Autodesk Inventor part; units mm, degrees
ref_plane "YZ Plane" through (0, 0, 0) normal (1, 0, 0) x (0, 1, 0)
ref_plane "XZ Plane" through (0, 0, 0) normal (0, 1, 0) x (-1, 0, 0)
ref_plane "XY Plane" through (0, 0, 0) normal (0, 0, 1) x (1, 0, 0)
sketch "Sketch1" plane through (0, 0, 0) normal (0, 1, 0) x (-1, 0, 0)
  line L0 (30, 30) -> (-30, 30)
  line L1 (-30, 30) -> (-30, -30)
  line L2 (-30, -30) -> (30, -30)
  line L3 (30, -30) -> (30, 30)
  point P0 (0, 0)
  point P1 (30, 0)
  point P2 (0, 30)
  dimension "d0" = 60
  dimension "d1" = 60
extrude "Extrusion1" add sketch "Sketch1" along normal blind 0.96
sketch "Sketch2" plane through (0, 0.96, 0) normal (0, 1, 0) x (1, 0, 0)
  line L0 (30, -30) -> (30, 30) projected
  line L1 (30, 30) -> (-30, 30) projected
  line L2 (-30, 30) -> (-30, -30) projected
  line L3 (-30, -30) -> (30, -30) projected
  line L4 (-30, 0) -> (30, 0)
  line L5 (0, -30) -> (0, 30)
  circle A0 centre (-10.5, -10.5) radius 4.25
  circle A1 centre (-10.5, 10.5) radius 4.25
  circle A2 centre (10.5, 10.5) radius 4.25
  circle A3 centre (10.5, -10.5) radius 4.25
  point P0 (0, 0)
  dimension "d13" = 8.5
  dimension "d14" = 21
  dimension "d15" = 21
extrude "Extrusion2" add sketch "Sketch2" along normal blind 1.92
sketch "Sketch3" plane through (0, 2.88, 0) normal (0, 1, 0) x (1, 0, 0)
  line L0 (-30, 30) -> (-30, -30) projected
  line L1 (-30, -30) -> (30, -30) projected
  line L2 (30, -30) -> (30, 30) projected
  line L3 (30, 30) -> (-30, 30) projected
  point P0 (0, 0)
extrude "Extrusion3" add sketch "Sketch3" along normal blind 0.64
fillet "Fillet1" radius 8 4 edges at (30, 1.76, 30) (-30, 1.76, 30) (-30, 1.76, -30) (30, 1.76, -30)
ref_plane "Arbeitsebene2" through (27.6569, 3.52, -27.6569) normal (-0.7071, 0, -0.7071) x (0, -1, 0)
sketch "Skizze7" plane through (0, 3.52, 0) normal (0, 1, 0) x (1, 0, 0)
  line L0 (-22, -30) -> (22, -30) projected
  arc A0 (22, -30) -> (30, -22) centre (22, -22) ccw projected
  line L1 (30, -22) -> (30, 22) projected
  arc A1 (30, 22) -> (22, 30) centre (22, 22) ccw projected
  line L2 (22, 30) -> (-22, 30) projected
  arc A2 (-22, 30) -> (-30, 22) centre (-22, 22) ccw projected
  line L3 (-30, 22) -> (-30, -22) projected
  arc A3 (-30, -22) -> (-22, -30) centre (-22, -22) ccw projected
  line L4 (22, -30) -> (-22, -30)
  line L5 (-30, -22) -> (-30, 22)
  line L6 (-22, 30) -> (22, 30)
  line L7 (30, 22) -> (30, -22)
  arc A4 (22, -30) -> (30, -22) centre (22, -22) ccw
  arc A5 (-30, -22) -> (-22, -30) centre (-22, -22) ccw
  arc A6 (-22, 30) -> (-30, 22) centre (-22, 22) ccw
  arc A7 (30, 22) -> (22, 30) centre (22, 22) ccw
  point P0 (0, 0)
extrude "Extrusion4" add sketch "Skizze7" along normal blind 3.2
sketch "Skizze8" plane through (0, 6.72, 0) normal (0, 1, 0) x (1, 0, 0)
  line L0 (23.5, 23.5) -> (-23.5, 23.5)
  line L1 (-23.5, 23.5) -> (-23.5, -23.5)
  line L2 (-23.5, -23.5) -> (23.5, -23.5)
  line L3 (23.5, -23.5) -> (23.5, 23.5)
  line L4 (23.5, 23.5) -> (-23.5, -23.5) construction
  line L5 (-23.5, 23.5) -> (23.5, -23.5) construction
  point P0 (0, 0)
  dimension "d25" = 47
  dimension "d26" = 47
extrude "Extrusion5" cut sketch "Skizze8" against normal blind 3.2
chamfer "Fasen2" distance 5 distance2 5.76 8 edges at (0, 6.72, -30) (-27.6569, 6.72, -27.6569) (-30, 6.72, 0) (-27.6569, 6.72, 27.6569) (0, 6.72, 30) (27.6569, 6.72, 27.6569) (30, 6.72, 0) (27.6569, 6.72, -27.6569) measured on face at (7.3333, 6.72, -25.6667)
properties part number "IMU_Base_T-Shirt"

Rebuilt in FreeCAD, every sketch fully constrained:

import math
import FreeCAD as App
import Part
import Sketcher
Q = App.Units.Quantity


def edges_at(feature, points):
    """Names of the edges that pass closest to the given points."""
    edges = feature.Shape.Edges
    near = lambda p: min(range(len(edges)), key=lambda i: edges[i].distToShape(Part.Vertex(*p))[0])
    return sorted({f"Edge{near(p) + 1}" for p in points})

doc = App.newDocument("Part")
body = doc.addObject("PartDesign::Body", "Body")

# Sketch on XZ plane
sketch1 = body.newObject("Sketcher::SketchObject", "Sketch")
sketch1.AttachmentSupport = (doc.getObject("XZ_Plane"), [""])
sketch1.MapMode = "FlatFace"
sketch1.addGeometry([
    Part.LineSegment(App.Vector(-30, -30, 0), App.Vector(-30, 30, 0)),
    Part.LineSegment(App.Vector(-30, 30, 0), App.Vector(30, 30, 0)),
    Part.LineSegment(App.Vector(30, 30, 0), App.Vector(30, -30, 0)),
    Part.LineSegment(App.Vector(30, -30, 0), App.Vector(-30, -30, 0)),
], False)
sketch1.addConstraint([
    Sketcher.Constraint("Coincident", 0, 2, 1, 1),
    Sketcher.Constraint("Coincident", 1, 2, 2, 1),
    Sketcher.Constraint("Coincident", 2, 2, 3, 1),
    Sketcher.Constraint("Coincident", 3, 2, 0, 1),
    Sketcher.Constraint("Vertical", 0),
    Sketcher.Constraint("Horizontal", 1),
    Sketcher.Constraint("Vertical", 2),
    Sketcher.Constraint("Horizontal", 3),
    Sketcher.Constraint("Symmetric", 0, 2, 2, 2, -1, 1),
    Sketcher.Constraint("Equal", 3, 0),
    Sketcher.Constraint("DistanceX", 1, 1, 1, 2, Q("60 mm")),
])
pad1 = body.newObject("PartDesign::Pad", "Pad")
pad1.Profile = sketch1
pad1.Length = 0.96
pad1.Reversed = True

# Sketch on XZ plane
sketch2 = body.newObject("Sketcher::SketchObject", "Sketch001")
sketch2.AttachmentSupport = (doc.getObject("XZ_Plane"), [""])
sketch2.MapMode = "FlatFace"
sketch2.AttachmentOffset = App.Placement(App.Vector(0, 0, -0.96), App.Rotation())
sketch2.addGeometry([
    Part.LineSegment(App.Vector(30, 30, 0), App.Vector(30, -30, 0)),  # 0
    Part.LineSegment(App.Vector(30, -30, 0), App.Vector(-30, -30, 0)),  # 1
    Part.LineSegment(App.Vector(-30, -30, 0), App.Vector(-30, 30, 0)),  # 2
    Part.LineSegment(App.Vector(-30, 30, 0), App.Vector(30, 30, 0)),  # 3
    Part.Circle(App.Vector(10.5, 10.5, 0), App.Vector(0, 0, 1), 4.2),  # 4
    Part.Circle(App.Vector(-10.5, 10.5, 0), App.Vector(0, 0, 1), 4.2),  # 5
    Part.Circle(App.Vector(10.5, -10.5, 0), App.Vector(0, 0, 1), 4.2),  # 6
    Part.Circle(App.Vector(-10.5, -10.5, 0), App.Vector(0, 0, 1), 4.2),  # 7
], False)
sketch2.addConstraint([
    Sketcher.Constraint("Coincident", 0, 2, 1, 1),
    Sketcher.Constraint("Coincident", 1, 2, 2, 1),
    Sketcher.Constraint("Coincident", 2, 2, 3, 1),
    Sketcher.Constraint("Coincident", 3, 2, 0, 1),
    Sketcher.Constraint("Vertical", 0),
    Sketcher.Constraint("Horizontal", 1),
    Sketcher.Constraint("Vertical", 2),
    Sketcher.Constraint("Horizontal", 3),
    Sketcher.Constraint("Equal", 4, 5),
    Sketcher.Constraint("Equal", 5, 6),
    Sketcher.Constraint("Equal", 6, 7),
    Sketcher.Constraint("Symmetric", 5, 3, 6, 3, -1, 1),
    Sketcher.Constraint("Symmetric", 4, 3, 7, 3, -1, 1),
    Sketcher.Constraint("Symmetric", 0, 2, 2, 2, -1, 1),
    Sketcher.Constraint("Symmetric", 4, 3, 5, 3, -2),
    Sketcher.Constraint("Equal", 3, 0),
    Sketcher.Constraint("Diameter", 4, Q("8.5 mm")),
    Sketcher.Constraint("DistanceX", 5, 3, 4, 3, Q("21 mm")),
    Sketcher.Constraint("DistanceY", 6, 3, 4, 3, Q("21 mm")),
    Sketcher.Constraint("DistanceX", 1, 2, 1, 1, Q("60 mm")),
])
pad2 = body.newObject("PartDesign::Pad", "Pad001")
pad2.Profile = sketch2
pad2.Length = 1.92
pad2.Reversed = True

# Sketch on XZ plane
sketch3 = body.newObject("Sketcher::SketchObject", "Sketch002")
sketch3.AttachmentSupport = (doc.getObject("XZ_Plane"), [""])
sketch3.MapMode = "FlatFace"
sketch3.AttachmentOffset = App.Placement(App.Vector(0, 0, -2.88), App.Rotation())
sketch3.addGeometry([
    Part.LineSegment(App.Vector(30, -30, 0), App.Vector(-30, -30, 0)),
    Part.LineSegment(App.Vector(-30, -30, 0), App.Vector(-30, 30, 0)),
    Part.LineSegment(App.Vector(-30, 30, 0), App.Vector(30, 30, 0)),
    Part.LineSegment(App.Vector(30, 30, 0), App.Vector(30, -30, 0)),
], False)
sketch3.addConstraint([
    Sketcher.Constraint("Coincident", 0, 2, 1, 1),
    Sketcher.Constraint("Coincident", 1, 2, 2, 1),
    Sketcher.Constraint("Coincident", 2, 2, 3, 1),
    Sketcher.Constraint("Coincident", 3, 2, 0, 1),
    Sketcher.Constraint("Horizontal", 0),
    Sketcher.Constraint("Vertical", 1),
    Sketcher.Constraint("Horizontal", 2),
    Sketcher.Constraint("Vertical", 3),
    Sketcher.Constraint("Symmetric", 0, 2, 2, 2, -1, 1),
    Sketcher.Constraint("Equal", 2, 1),
    Sketcher.Constraint("DistanceX", 0, 2, 0, 1, Q("60 mm")),
])
pad3 = body.newObject("PartDesign::Pad", "Pad002")
pad3.Profile = sketch3
pad3.Length = 0.64
pad3.Reversed = True
doc.recompute()

fillet = body.newObject("PartDesign::Fillet", "Fillet")
fillet.Base = (pad3, edges_at(pad3, [
    (30, 1.76, 30),
    (-30, 1.76, 30),
    (-30, 1.76, -30),
    (30, 1.76, -30),
]))
fillet.Radius = 8

# Sketch on XZ plane
sketch4 = body.newObject("Sketcher::SketchObject", "Sketch003")
sketch4.AttachmentSupport = (doc.getObject("XZ_Plane"), [""])
sketch4.MapMode = "FlatFace"
sketch4.AttachmentOffset = App.Placement(App.Vector(0, 0, -3.52), App.Rotation())
sketch4.addGeometry([
    Part.ArcOfCircle(Part.Circle(App.Vector(-22, 22, 0), App.Vector(0, 0, 1), 8), math.radians(90), math.radians(180)),  # 0
    Part.LineSegment(App.Vector(-22, 30, 0), App.Vector(22, 30, 0)),  # 1
    Part.ArcOfCircle(Part.Circle(App.Vector(22, 22, 0), App.Vector(0, 0, 1), 8), math.radians(0), math.radians(90)),  # 2
    Part.LineSegment(App.Vector(30, 22, 0), App.Vector(30, -22, 0)),  # 3
    Part.ArcOfCircle(Part.Circle(App.Vector(22, -22, 0), App.Vector(0, 0, 1), 8), math.radians(-90), math.radians(0)),  # 4
    Part.LineSegment(App.Vector(22, -30, 0), App.Vector(-22, -30, 0)),  # 5
    Part.ArcOfCircle(Part.Circle(App.Vector(-22, -22, 0), App.Vector(0, 0, 1), 8), math.radians(180), math.radians(270)),  # 6
    Part.LineSegment(App.Vector(-30, -22, 0), App.Vector(-30, 22, 0)),  # 7
], False)
sketch4.addConstraint([
    Sketcher.Constraint("Tangent", 0, 1, 1, 1),
    Sketcher.Constraint("Tangent", 1, 2, 2, 2),
    Sketcher.Constraint("Tangent", 2, 1, 3, 1),
    Sketcher.Constraint("Tangent", 3, 2, 4, 2),
    Sketcher.Constraint("Tangent", 4, 1, 5, 1),
    Sketcher.Constraint("Tangent", 5, 2, 6, 2),
    Sketcher.Constraint("Tangent", 6, 1, 7, 1),
    Sketcher.Constraint("Tangent", 7, 2, 0, 2),
    Sketcher.Constraint("Horizontal", 1),
    Sketcher.Constraint("Vertical", 3),
    Sketcher.Constraint("Horizontal", 5),
    Sketcher.Constraint("Vertical", 7),
    Sketcher.Constraint("Equal", 0, 2),
    Sketcher.Constraint("Equal", 2, 4),
    Sketcher.Constraint("Equal", 4, 6),
    Sketcher.Constraint("Symmetric", 0, 3, 4, 3, -1, 1),
    Sketcher.Constraint("Equal", 5, 3),
    Sketcher.Constraint("Radius", 0, Q("8 mm")),
    Sketcher.Constraint("DistanceX", 1, 1, 1, 2, Q("44 mm")),
])
pad4 = body.newObject("PartDesign::Pad", "Pad003")
pad4.Profile = sketch4
pad4.Length = 3.2
pad4.Reversed = True

# Sketch on XZ plane
sketch5 = body.newObject("Sketcher::SketchObject", "Sketch004")
sketch5.AttachmentSupport = (doc.getObject("XZ_Plane"), [""])
sketch5.MapMode = "FlatFace"
sketch5.AttachmentOffset = App.Placement(App.Vector(0, 0, -6.72), App.Rotation())
sketch5.addGeometry([
    Part.LineSegment(App.Vector(24, 24, 0), App.Vector(24, -24, 0)),
    Part.LineSegment(App.Vector(24, -24, 0), App.Vector(-24, -24, 0)),
    Part.LineSegment(App.Vector(-24, -24, 0), App.Vector(-24, 24, 0)),
    Part.LineSegment(App.Vector(-24, 24, 0), App.Vector(24, 24, 0)),
], False)
sketch5.addConstraint([
    Sketcher.Constraint("Coincident", 0, 2, 1, 1),
    Sketcher.Constraint("Coincident", 1, 2, 2, 1),
    Sketcher.Constraint("Coincident", 2, 2, 3, 1),
    Sketcher.Constraint("Coincident", 3, 2, 0, 1),
    Sketcher.Constraint("Vertical", 0),
    Sketcher.Constraint("Horizontal", 1),
    Sketcher.Constraint("Vertical", 2),
    Sketcher.Constraint("Horizontal", 3),
    Sketcher.Constraint("Symmetric", 0, 2, 2, 2, -1, 1),
    Sketcher.Constraint("Equal", 3, 0),
    Sketcher.Constraint("DistanceX", 1, 2, 1, 1, Q("47 mm")),
])
pocket1 = body.newObject("PartDesign::Pocket", "Pocket")
pocket1.Profile = sketch5
pocket1.Length = 3.2
pocket1.Reversed = True
doc.recompute()

chamfer = body.newObject("PartDesign::Chamfer", "Chamfer")
chamfer.Base = (pocket1, edges_at(pocket1, [
    (0, 6.72, -30),
    (-27.657, 6.72, -27.657),
    (-30, 6.72, 0),
    (-27.657, 6.72, 27.657),
    (0, 6.72, 30),
    (27.657, 6.72, 27.657),
    (30, 6.72, 0),
    (27.657, 6.72, -27.657),
]))
chamfer.ChamferType = "Two distances"
chamfer.Size = 5
chamfer.Size2 = 5.76
chamfer.FlipDirection = True

doc.recompute()
